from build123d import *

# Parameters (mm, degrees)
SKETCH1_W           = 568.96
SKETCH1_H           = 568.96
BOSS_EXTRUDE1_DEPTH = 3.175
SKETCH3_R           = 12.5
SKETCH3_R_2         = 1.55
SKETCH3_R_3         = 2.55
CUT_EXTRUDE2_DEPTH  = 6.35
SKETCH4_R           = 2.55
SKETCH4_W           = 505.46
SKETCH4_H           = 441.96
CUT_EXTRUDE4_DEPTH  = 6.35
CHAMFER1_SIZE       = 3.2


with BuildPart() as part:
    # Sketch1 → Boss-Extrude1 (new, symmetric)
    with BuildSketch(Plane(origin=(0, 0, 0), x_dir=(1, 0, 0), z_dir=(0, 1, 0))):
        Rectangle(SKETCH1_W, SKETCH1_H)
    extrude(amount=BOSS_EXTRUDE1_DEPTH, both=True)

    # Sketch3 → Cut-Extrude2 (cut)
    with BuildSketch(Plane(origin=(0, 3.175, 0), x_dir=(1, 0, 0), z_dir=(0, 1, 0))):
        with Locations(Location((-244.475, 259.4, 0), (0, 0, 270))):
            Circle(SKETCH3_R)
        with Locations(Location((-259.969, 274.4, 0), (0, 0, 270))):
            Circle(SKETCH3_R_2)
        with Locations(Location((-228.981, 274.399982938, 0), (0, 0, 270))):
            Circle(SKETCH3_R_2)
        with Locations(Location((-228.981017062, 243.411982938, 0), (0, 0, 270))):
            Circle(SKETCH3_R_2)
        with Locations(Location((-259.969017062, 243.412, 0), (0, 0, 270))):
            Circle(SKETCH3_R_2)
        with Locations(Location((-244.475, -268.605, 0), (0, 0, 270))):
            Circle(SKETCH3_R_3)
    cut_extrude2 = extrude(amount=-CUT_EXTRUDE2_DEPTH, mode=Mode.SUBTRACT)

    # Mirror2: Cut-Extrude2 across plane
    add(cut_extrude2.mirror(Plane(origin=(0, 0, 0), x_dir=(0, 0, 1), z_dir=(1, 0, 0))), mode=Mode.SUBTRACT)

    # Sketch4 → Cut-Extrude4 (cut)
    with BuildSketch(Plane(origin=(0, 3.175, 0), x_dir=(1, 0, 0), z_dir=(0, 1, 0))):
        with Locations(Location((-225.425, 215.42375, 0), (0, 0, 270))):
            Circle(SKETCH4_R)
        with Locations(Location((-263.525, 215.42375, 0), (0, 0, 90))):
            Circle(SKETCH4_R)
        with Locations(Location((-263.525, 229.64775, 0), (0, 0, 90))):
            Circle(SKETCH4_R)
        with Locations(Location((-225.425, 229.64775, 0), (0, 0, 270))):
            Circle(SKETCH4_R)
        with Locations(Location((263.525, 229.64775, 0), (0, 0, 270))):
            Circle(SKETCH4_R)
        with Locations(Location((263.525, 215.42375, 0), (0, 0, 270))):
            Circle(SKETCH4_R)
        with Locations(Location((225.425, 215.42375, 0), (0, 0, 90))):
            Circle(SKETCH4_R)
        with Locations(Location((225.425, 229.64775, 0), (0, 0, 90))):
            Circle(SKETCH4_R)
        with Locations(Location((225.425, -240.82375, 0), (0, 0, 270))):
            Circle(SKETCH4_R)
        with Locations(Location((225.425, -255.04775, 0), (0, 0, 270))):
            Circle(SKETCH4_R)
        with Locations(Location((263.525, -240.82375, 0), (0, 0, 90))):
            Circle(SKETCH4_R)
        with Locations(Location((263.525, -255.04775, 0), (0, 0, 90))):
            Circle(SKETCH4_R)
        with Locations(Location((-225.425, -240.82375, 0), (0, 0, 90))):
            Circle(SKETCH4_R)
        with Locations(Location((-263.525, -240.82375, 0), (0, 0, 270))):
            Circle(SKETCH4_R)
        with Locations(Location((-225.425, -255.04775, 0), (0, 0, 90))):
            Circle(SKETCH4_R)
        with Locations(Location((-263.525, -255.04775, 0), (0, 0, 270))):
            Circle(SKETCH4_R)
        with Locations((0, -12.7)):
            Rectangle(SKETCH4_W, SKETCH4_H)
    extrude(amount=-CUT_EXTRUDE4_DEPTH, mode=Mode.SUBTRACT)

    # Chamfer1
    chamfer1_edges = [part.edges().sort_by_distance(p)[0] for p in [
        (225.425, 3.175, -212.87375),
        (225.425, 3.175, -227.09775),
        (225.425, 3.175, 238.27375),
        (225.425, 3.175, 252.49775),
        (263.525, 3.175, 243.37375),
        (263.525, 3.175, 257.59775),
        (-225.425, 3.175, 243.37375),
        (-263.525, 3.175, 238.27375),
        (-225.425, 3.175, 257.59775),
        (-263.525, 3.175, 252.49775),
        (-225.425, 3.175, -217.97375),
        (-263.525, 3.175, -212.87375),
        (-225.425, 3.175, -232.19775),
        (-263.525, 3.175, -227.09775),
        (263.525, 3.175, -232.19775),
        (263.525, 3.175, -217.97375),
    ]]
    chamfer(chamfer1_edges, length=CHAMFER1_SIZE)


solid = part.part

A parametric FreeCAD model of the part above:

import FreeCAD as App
import Part
import Sketcher
from FreeCAD import Vector
Q = App.Units.Quantity


def edges_at(feature, points):
    """Names of the edges that pass closest to the given points."""
    edges = feature.Shape.Edges
    near = lambda p: min(range(len(edges)), key=lambda i: edges[i].distToShape(Part.Vertex(*p))[0])
    return sorted({f"Edge{near(p) + 1}" for p in points})


def add_polygon(sketch, points):
    """Adds a closed chain of lines whose ends are joined by coincident constraints."""
    first, n = sketch.GeometryCount, len(points)
    for a, b in zip(points, points[1:] + points[:1]):
        sketch.addGeometry(Part.LineSegment(App.Vector(*a, 0), App.Vector(*b, 0)), False)
    for i in range(n):
        sketch.addConstraint(Sketcher.Constraint("Coincident", first + i, 2, first + (i + 1) % n, 1))

doc = App.newDocument("Part")
params = doc.addObject("Spreadsheet::Sheet", "Params")
for row, (alias, value) in enumerate([
    ("sketch1_width", "22.4 in"),
    ("pad1_length", "0.25 in"),
    ("pocket1_length", "0.25 in"),
    ("sketch3_width", "19.9 in"),
    ("sketch3_height", "17.4 in"),
    ("pocket2_length", "0.25 in"),
    ("chamfer_size", "3.2 mm"),
], start=1):
    params.set(f"A{row}", alias)
    params.set(f"B{row}", "=" + value)
    params.setAlias(f"B{row}", alias)

body = doc.addObject("PartDesign::Body", "Body")

# Sketch on XZ plane
sketch1 = body.newObject("Sketcher::SketchObject", "Sketch")
sketch1.AttachmentSupport = (doc.getObject("XZ_Plane"), [""])
sketch1.MapMode = "FlatFace"
add_polygon(sketch1, [(-284.48, -284.48), (-284.48, 284.48), (284.48, 284.48), (284.48, -284.48)])  # lines 0-3
sketch1.addConstraint([
    Sketcher.Constraint("Vertical", 0),
    Sketcher.Constraint("Horizontal", 1),
    Sketcher.Constraint("Vertical", 2),
    Sketcher.Constraint("Horizontal", 3),
    Sketcher.Constraint("Symmetric", 0, 2, 2, 2, -1, 1),
    Sketcher.Constraint("Equal", 3, 0),
    Sketcher.Constraint("DistanceX", 1, 1, 1, 2, Q("22.4 in")),
])
sketch1.setExpression("Constraints[10]", "Params.sketch1_width")
pad1 = body.newObject("PartDesign::Pad", "Pad")
pad1.Profile = sketch1
pad1.setExpression("Length", "Params.pad1_length")
pad1.Midplane = True

# Sketch on XZ plane
sketch2 = body.newObject("Sketcher::SketchObject", "Sketch001")
sketch2.AttachmentSupport = (doc.getObject("XZ_Plane"), [""])
sketch2.MapMode = "FlatFace"
sketch2.AttachmentOffset = App.Placement(Vector(0, 0, -0.125 * 25.4), App.Rotation())
sketch2.addGeometry([
    Part.Circle(Vector(-244.475, -259.4, 0), Vector(0, 0, 1), 12.5),  # 0
    Part.Circle(Vector(-259.969, -274.4, 0), Vector(0, 0, 1), 1.55),  # 1
    Part.Circle(Vector(-228.981, -274.399983, 0), Vector(0, 0, 1), 1.55),  # 2
    Part.Circle(Vector(-228.981017, -243.411983, 0), Vector(0, 0, 1), 1.55),  # 3
    Part.Circle(Vector(-259.969017, -243.412, 0), Vector(0, 0, 1), 1.55),  # 4
    Part.Circle(Vector(-244.475, 268.605, 0), Vector(0, 0, 1), 2.55),  # 5
], False)
sketch2.addConstraint([
    Sketcher.Constraint("Equal", 1, 2),
    Sketcher.Constraint("Equal", 2, 3),
    Sketcher.Constraint("Equal", 3, 4),
    Sketcher.Constraint("Vertical", 0, 3, 5, 3),
    Sketcher.Constraint("Diameter", 0, Q("25 mm")),
    Sketcher.Constraint("Diameter", 1, Q("3.1 mm")),
    Sketcher.Constraint("Diameter", 5, Q("5.1 mm")),
    Sketcher.Constraint("DistanceX", 1, 3, 0, 3, Q("0.61 in")),
    Sketcher.Constraint("DistanceX", 0, 3, 2, 3, Q("0.61 in")),
    Sketcher.Constraint("DistanceY", 2, 3, 3, 3, Q("1.22 in")),
    Sketcher.Constraint("DistanceY", 1, 3, 4, 3, Q("1.22 in")),
    Sketcher.Constraint("DistanceX", 4, 3, 3, 3, Q("1.22 in")),
    Sketcher.Constraint("DistanceX", 0, 3, -1, 1, Q("9.625 in")),
    Sketcher.Constraint("DistanceY", -1, 1, 5, 3, Q("10.575 in")),
    Sketcher.Constraint("DistanceY", 0, 3, -1, 1, Q("259.4 mm")),
    Sketcher.Constraint("DistanceY", 1, 3, -1, 1, Q("274.4 mm")),
    Sketcher.Constraint("DistanceY", 2, 3, -1, 1, Q("274.399983 mm")),
    Sketcher.Constraint("DistanceX", 3, 3, -1, 1, Q("228.981017 mm")),
])
pocket1 = body.newObject("PartDesign::Pocket", "Pocket")
pocket1.Profile = sketch2
pocket1.setExpression("Length", "Params.pocket1_length")
pocket1.Reversed = True
doc.recompute()

mirrored = body.newObject("PartDesign::Mirrored", "Mirrored")
mirrored.Originals = [pocket1]
mirrored.MirrorPlane = (doc.getObject("YZ_Plane"), [""])
body.Tip = mirrored

# Sketch on XZ plane
sketch3 = body.newObject("Sketcher::SketchObject", "Sketch002")
sketch3.AttachmentSupport = (doc.getObject("XZ_Plane"), [""])
sketch3.MapMode = "FlatFace"
sketch3.AttachmentOffset = App.Placement(Vector(0, 0, -0.125 * 25.4), App.Rotation())
sketch3.addGeometry(Part.Circle(Vector(-225.425, -215.42375, 0), Vector(0, 0, 1), 2.55), False)  # 0
sketch3.addGeometry(Part.Circle(Vector(-263.525, -215.42375, 0), Vector(0, 0, 1), 2.55), False)  # 1
sketch3.addGeometry(Part.Circle(Vector(-263.525, -229.64775, 0), Vector(0, 0, 1), 2.55), False)  # 2
sketch3.addGeometry(Part.Circle(Vector(-225.425, -229.64775, 0), Vector(0, 0, 1), 2.55), False)  # 3
sketch3.addGeometry(Part.Circle(Vector(263.525, -229.64775, 0), Vector(0, 0, 1), 2.55), False)  # 4
sketch3.addGeometry(Part.Circle(Vector(263.525, -215.42375, 0), Vector(0, 0, 1), 2.55), False)  # 5
sketch3.addGeometry(Part.Circle(Vector(225.425, -215.42375, 0), Vector(0, 0, 1), 2.55), False)  # 6
sketch3.addGeometry(Part.Circle(Vector(225.425, -229.64775, 0), Vector(0, 0, 1), 2.55), False)  # 7
sketch3.addGeometry(Part.Circle(Vector(225.425, 240.82375, 0), Vector(0, 0, 1), 2.55), False)  # 8
sketch3.addGeometry(Part.Circle(Vector(225.425, 255.04775, 0), Vector(0, 0, 1), 2.55), False)  # 9
sketch3.addGeometry(Part.Circle(Vector(263.525, 240.82375, 0), Vector(0, 0, 1), 2.55), False)  # 10
sketch3.addGeometry(Part.Circle(Vector(263.525, 255.04775, 0), Vector(0, 0, 1), 2.55), False)  # 11
sketch3.addGeometry(Part.Circle(Vector(-225.425, 240.82375, 0), Vector(0, 0, 1), 2.55), False)  # 12
sketch3.addGeometry(Part.Circle(Vector(-263.525, 240.82375, 0), Vector(0, 0, 1), 2.55), False)  # 13
sketch3.addGeometry(Part.Circle(Vector(-225.425, 255.04775, 0), Vector(0, 0, 1), 2.55), False)  # 14
sketch3.addGeometry(Part.Circle(Vector(-263.525, 255.04775, 0), Vector(0, 0, 1), 2.55), False)  # 15
add_polygon(sketch3, [(-252.73, -208.28), (-252.73, 233.68), (252.73, 233.68), (252.73, -208.28)])  # lines 16-19
sketch3.addConstraint([
    Sketcher.Constraint("Vertical", 16),
    Sketcher.Constraint("Horizontal", 17),
    Sketcher.Constraint("Vertical", 18),
    Sketcher.Constraint("Horizontal", 19),
    Sketcher.Constraint("Equal", 0, 1),
    Sketcher.Constraint("Equal", 1, 2),
    Sketcher.Constraint("Equal", 2, 3),
    Sketcher.Constraint("Equal", 3, 4),
    Sketcher.Constraint("Equal", 4, 5),
    Sketcher.Constraint("Equal", 5, 6),
    Sketcher.Constraint("Equal", 6, 7),
    Sketcher.Constraint("Equal", 7, 8),
    Sketcher.Constraint("Equal", 8, 9),
    Sketcher.Constraint("Equal", 9, 10),
    Sketcher.Constraint("Equal", 10, 11),
    Sketcher.Constraint("Equal", 11, 12),
    Sketcher.Constraint("Equal", 12, 13),
    Sketcher.Constraint("Equal", 13, 14),
    Sketcher.Constraint("Equal", 14, 15),
    Sketcher.Constraint("Symmetric", 2, 3, 4, 3, -2),
    Sketcher.Constraint("Symmetric", 1, 3, 5, 3, -2),
    Sketcher.Constraint("Symmetric", 0, 3, 6, 3, -2),
    Sketcher.Constraint("Symmetric", 3, 3, 7, 3, -2),
    Sketcher.Constraint("Symmetric", 8, 3, 12, 3, -2),
    Sketcher.Constraint("Symmetric", 10, 3, 13, 3, -2),
    Sketcher.Constraint("Symmetric", 9, 3, 14, 3, -2),
    Sketcher.Constraint("Symmetric", 11, 3, 15, 3, -2),
    Sketcher.Constraint("Horizontal", 0, 3, 1, 3),
    Sketcher.Constraint("Horizontal", 2, 3, 3, 3),
    Sketcher.Constraint("Horizontal", 8, 3, 10, 3),
    Sketcher.Constraint("Horizontal", 9, 3, 11, 3),
    Sketcher.Constraint("Vertical", 1, 3, 2, 3),
    Sketcher.Constraint("Vertical", 0, 3, 3, 3),
    Sketcher.Constraint("Vertical", 7, 3, 8, 3),
    Sketcher.Constraint("Vertical", 8, 3, 9, 3),
    Sketcher.Constraint("Vertical", 5, 3, 10, 3),
    Sketcher.Constraint("Vertical", 10, 3, 11, 3),
    Sketcher.Constraint("DistanceX", 17, 1, 17, 2, Q("19.9 in")),
    Sketcher.Constraint("DistanceY", 16, 1, 16, 2, Q("17.4 in")),
    Sketcher.Constraint("DistanceY", -1, 1, 16, 2, Q("9.2 in")),
    Sketcher.Constraint("DistanceX", 1, 3, 0, 3, Q("1.5 in")),
    Sketcher.Constraint("Diameter", 0, Q("5.1 mm")),
    Sketcher.Constraint("DistanceX", 16, 2, -1, 1, Q("9.95 in")),
    Sketcher.Constraint("DistanceY", 2, 3, 1, 3, Q("0.56 in")),
    Sketcher.Constraint("DistanceX", 3, 3, 4, 3, Q("19.25 in")),
    Sketcher.Constraint("DistanceY", 8, 3, 9, 3, Q("0.56 in")),
    Sketcher.Constraint("DistanceY", 16, 2, 13, 3, Q("0.28125 in")),
    Sketcher.Constraint("DistanceY", 5, 3, 18, 2, Q("0.28125 in")),
])
sketch3.setExpression("Constraints[41]", "Params.sketch3_width")
sketch3.setExpression("Constraints[42]", "Params.sketch3_height")
pocket2 = body.newObject("PartDesign::Pocket", "Pocket001")
pocket2.Profile = sketch3
pocket2.setExpression("Length", "Params.pocket2_length")
pocket2.Reversed = True
doc.recompute()

chamfer = body.newObject("PartDesign::Chamfer", "Chamfer")
chamfer.Base = (pocket2, edges_at(pocket2, [
    (225.425, 3.175, -212.874),
    (225.425, 3.175, -227.098),
    (225.425, 3.175, 238.274),
    (225.425, 3.175, 252.498),
    (263.525, 3.175, 243.374),
    (263.525, 3.175, 257.598),
    (-225.425, 3.175, 243.374),
    (-263.525, 3.175, 238.274),
    (-225.425, 3.175, 257.598),
    (-263.525, 3.175, 252.498),
    (-225.425, 3.175, -217.974),
    (-263.525, 3.175, -212.874),
    (-225.425, 3.175, -232.198),
    (-263.525, 3.175, -227.098),
    (263.525, 3.175, -232.198),
    (263.525, 3.175, -217.974),
]))
chamfer.setExpression("Size", "Params.chamfer_size")

doc.recompute()
